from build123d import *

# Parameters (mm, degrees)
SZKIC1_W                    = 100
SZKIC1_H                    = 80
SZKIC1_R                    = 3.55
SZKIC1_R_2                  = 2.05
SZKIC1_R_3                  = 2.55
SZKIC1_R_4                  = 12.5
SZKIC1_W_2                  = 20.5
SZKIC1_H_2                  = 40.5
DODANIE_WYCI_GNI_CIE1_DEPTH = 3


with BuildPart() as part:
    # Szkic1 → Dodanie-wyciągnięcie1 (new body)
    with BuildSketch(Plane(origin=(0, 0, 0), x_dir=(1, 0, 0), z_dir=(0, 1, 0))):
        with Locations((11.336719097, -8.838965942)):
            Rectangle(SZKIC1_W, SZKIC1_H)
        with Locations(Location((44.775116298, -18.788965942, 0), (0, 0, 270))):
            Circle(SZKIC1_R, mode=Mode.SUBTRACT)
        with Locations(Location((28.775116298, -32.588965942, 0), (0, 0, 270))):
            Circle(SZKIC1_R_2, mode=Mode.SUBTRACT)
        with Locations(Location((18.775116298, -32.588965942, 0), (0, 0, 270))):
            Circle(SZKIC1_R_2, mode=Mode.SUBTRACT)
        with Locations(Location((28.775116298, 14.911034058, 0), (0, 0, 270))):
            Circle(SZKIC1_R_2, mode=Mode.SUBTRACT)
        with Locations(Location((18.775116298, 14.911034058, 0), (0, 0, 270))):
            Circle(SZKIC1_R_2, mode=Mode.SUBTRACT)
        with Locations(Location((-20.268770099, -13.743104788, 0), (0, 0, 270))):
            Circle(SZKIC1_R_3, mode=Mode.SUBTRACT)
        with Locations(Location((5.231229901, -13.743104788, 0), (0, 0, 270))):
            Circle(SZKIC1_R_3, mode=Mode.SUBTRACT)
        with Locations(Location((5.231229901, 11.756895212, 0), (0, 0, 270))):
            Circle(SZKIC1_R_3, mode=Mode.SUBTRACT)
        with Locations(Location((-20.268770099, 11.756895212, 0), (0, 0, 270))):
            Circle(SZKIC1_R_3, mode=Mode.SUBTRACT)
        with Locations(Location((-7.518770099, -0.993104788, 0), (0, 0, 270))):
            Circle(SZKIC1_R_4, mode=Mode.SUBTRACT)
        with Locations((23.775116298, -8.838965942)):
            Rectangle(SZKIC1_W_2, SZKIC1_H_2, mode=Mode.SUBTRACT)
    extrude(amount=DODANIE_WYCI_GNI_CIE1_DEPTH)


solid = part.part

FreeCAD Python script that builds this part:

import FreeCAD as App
import Part
import Sketcher


def add_polygon(sketch, points):
    """Adds a closed chain of lines whose ends are joined by coincident constraints."""
    first, n = sketch.GeometryCount, len(points)
    for a, b in zip(points, points[1:] + points[:1]):
        sketch.addGeometry(Part.LineSegment(App.Vector(*a, 0), App.Vector(*b, 0)), False)
    for i in range(n):
        sketch.addConstraint(Sketcher.Constraint("Coincident", first + i, 2, first + (i + 1) % n, 1))

doc = App.newDocument("Part")
body = doc.addObject("PartDesign::Body", "Body")

# Sketch on XZ plane
sketch1 = body.newObject("Sketcher::SketchObject", "Sketch")
sketch1.AttachmentSupport = (doc.getObject("XZ_Plane"), [""])
sketch1.MapMode = "FlatFace"
add_polygon(sketch1, [(-38.663281, -31.161034), (-38.663281, 48.838966), (61.336719, 48.838966), (61.336719, -31.161034)])  # lines 0-3
sketch1.addGeometry(Part.Circle(App.Vector(-20.26877, 13.743105, 0), App.Vector(0, 0, 1), 2.55), False)  # 4
sketch1.addGeometry(Part.Circle(App.Vector(5.23123, 13.743105, 0), App.Vector(0, 0, 1), 2.55), False)  # 5
sketch1.addGeometry(Part.Circle(App.Vector(18.775116, 32.588966, 0), App.Vector(0, 0, 1), 2.05), False)  # 6
sketch1.addGeometry(Part.Circle(App.Vector(28.775116, 32.588966, 0), App.Vector(0, 0, 1), 2.05), False)  # 7
sketch1.addGeometry(Part.Circle(App.Vector(44.775116, 18.788966, 0), App.Vector(0, 0, 1), 3.55), False)  # 8
sketch1.addGeometry(Part.Circle(App.Vector(-7.51877, 0.993105, 0), App.Vector(0, 0, 1), 12.5), False)  # 9
sketch1.addGeometry(Part.Circle(App.Vector(-20.26877, -11.756895, 0), App.Vector(0, 0, 1), 2.55), False)  # 10
sketch1.addGeometry(Part.Circle(App.Vector(5.23123, -11.756895, 0), App.Vector(0, 0, 1), 2.55), False)  # 11
add_polygon(sketch1, [(34.025116, 29.088966), (13.525116, 29.088966), (13.525116, -11.411034), (34.025116, -11.411034)])  # lines 12-15
sketch1.addGeometry(Part.Circle(App.Vector(18.775116, -14.911034, 0), App.Vector(0, 0, 1), 2.05), False)  # 16
sketch1.addGeometry(Part.Circle(App.Vector(28.775116, -14.911034, 0), App.Vector(0, 0, 1), 2.05), False)  # 17
sketch1.addConstraint([
    Sketcher.Constraint("Vertical", 0),
    Sketcher.Constraint("Horizontal", 1),
    Sketcher.Constraint("Vertical", 2),
    Sketcher.Constraint("Horizontal", 3),
    Sketcher.Constraint("Horizontal", 12),
    Sketcher.Constraint("Vertical", 13),
    Sketcher.Constraint("Horizontal", 14),
    Sketcher.Constraint("Vertical", 15),
    Sketcher.Constraint("Equal", 4, 5),
    Sketcher.Constraint("Equal", 6, 7),
    Sketcher.Constraint("Equal", 5, 10),
    Sketcher.Constraint("Equal", 10, 11),
    Sketcher.Constraint("Equal", 7, 16),
    Sketcher.Constraint("Equal", 16, 17),
    Sketcher.Constraint("Horizontal", 4, 3, 5, 3),
    Sketcher.Constraint("Horizontal", 6, 3, 7, 3),
    Sketcher.Constraint("Horizontal", 10, 3, 11, 3),
    Sketcher.Constraint("Horizontal", 16, 3, 17, 3),
    Sketcher.Constraint("Vertical", 4, 3, 10, 3),
    Sketcher.Constraint("Vertical", 5, 3, 11, 3),
    Sketcher.Constraint("Vertical", 6, 3, 16, 3),
    Sketcher.Constraint("Vertical", 7, 3, 17, 3),
    Sketcher.Constraint("Diameter", 9, 25.0),
    Sketcher.Constraint("Diameter", 4, 5.1),
    Sketcher.Constraint("Diameter", 6, 4.1),
    Sketcher.Constraint("Diameter", 8, 7.1),
    Sketcher.Constraint("DistanceX", 1, 1, 1, 2, 100.0),
    Sketcher.Constraint("DistanceY", 0, 1, 0, 2, 80.0),
    Sketcher.Constraint("DistanceX", 12, 2, 12, 1, 20.5),
    Sketcher.Constraint("DistanceY", 13, 2, 13, 1, 40.5),
    Sketcher.Constraint("DistanceX", 6, 3, 7, 3, 10.0),
    Sketcher.Constraint("DistanceX", 7, 3, 8, 3, 16.0),
    Sketcher.Constraint("DistanceX", 4, 3, 5, 3, 25.5),
    Sketcher.Constraint("DistanceY", 8, 3, 7, 3, 13.8),
    Sketcher.Constraint("DistanceY", 10, 3, 4, 3, 25.5),
    Sketcher.Constraint("DistanceY", 16, 3, 8, 3, 33.7),
    Sketcher.Constraint("DistanceY", 12, 2, 6, 3, 3.5),
    Sketcher.Constraint("DistanceX", 4, 3, 9, 3, 12.75),
    Sketcher.Constraint("DistanceY", 9, 3, 4, 3, 12.75),
    Sketcher.Constraint("DistanceY", 6, 3, 0, 2, 16.25),
    Sketcher.Constraint("DistanceX", 12, 2, 6, 3, 5.25),
    Sketcher.Constraint("DistanceX", 4, 3, -1, 1, 20.26877),
    Sketcher.Constraint("DistanceX", 0, 2, -1, 1, 38.663281),
    Sketcher.Constraint("DistanceY", 5, 3, 6, 3, 18.845861),
    Sketcher.Constraint("DistanceY", -1, 1, 4, 3, 13.743105),
    Sketcher.Constraint("DistanceX", -1, 1, 6, 3, 18.775116),
])
pad1 = body.newObject("PartDesign::Pad", "Pad")
pad1.Profile = sketch1
pad1.Length = 3
pad1.Reversed = True

doc.recompute()
